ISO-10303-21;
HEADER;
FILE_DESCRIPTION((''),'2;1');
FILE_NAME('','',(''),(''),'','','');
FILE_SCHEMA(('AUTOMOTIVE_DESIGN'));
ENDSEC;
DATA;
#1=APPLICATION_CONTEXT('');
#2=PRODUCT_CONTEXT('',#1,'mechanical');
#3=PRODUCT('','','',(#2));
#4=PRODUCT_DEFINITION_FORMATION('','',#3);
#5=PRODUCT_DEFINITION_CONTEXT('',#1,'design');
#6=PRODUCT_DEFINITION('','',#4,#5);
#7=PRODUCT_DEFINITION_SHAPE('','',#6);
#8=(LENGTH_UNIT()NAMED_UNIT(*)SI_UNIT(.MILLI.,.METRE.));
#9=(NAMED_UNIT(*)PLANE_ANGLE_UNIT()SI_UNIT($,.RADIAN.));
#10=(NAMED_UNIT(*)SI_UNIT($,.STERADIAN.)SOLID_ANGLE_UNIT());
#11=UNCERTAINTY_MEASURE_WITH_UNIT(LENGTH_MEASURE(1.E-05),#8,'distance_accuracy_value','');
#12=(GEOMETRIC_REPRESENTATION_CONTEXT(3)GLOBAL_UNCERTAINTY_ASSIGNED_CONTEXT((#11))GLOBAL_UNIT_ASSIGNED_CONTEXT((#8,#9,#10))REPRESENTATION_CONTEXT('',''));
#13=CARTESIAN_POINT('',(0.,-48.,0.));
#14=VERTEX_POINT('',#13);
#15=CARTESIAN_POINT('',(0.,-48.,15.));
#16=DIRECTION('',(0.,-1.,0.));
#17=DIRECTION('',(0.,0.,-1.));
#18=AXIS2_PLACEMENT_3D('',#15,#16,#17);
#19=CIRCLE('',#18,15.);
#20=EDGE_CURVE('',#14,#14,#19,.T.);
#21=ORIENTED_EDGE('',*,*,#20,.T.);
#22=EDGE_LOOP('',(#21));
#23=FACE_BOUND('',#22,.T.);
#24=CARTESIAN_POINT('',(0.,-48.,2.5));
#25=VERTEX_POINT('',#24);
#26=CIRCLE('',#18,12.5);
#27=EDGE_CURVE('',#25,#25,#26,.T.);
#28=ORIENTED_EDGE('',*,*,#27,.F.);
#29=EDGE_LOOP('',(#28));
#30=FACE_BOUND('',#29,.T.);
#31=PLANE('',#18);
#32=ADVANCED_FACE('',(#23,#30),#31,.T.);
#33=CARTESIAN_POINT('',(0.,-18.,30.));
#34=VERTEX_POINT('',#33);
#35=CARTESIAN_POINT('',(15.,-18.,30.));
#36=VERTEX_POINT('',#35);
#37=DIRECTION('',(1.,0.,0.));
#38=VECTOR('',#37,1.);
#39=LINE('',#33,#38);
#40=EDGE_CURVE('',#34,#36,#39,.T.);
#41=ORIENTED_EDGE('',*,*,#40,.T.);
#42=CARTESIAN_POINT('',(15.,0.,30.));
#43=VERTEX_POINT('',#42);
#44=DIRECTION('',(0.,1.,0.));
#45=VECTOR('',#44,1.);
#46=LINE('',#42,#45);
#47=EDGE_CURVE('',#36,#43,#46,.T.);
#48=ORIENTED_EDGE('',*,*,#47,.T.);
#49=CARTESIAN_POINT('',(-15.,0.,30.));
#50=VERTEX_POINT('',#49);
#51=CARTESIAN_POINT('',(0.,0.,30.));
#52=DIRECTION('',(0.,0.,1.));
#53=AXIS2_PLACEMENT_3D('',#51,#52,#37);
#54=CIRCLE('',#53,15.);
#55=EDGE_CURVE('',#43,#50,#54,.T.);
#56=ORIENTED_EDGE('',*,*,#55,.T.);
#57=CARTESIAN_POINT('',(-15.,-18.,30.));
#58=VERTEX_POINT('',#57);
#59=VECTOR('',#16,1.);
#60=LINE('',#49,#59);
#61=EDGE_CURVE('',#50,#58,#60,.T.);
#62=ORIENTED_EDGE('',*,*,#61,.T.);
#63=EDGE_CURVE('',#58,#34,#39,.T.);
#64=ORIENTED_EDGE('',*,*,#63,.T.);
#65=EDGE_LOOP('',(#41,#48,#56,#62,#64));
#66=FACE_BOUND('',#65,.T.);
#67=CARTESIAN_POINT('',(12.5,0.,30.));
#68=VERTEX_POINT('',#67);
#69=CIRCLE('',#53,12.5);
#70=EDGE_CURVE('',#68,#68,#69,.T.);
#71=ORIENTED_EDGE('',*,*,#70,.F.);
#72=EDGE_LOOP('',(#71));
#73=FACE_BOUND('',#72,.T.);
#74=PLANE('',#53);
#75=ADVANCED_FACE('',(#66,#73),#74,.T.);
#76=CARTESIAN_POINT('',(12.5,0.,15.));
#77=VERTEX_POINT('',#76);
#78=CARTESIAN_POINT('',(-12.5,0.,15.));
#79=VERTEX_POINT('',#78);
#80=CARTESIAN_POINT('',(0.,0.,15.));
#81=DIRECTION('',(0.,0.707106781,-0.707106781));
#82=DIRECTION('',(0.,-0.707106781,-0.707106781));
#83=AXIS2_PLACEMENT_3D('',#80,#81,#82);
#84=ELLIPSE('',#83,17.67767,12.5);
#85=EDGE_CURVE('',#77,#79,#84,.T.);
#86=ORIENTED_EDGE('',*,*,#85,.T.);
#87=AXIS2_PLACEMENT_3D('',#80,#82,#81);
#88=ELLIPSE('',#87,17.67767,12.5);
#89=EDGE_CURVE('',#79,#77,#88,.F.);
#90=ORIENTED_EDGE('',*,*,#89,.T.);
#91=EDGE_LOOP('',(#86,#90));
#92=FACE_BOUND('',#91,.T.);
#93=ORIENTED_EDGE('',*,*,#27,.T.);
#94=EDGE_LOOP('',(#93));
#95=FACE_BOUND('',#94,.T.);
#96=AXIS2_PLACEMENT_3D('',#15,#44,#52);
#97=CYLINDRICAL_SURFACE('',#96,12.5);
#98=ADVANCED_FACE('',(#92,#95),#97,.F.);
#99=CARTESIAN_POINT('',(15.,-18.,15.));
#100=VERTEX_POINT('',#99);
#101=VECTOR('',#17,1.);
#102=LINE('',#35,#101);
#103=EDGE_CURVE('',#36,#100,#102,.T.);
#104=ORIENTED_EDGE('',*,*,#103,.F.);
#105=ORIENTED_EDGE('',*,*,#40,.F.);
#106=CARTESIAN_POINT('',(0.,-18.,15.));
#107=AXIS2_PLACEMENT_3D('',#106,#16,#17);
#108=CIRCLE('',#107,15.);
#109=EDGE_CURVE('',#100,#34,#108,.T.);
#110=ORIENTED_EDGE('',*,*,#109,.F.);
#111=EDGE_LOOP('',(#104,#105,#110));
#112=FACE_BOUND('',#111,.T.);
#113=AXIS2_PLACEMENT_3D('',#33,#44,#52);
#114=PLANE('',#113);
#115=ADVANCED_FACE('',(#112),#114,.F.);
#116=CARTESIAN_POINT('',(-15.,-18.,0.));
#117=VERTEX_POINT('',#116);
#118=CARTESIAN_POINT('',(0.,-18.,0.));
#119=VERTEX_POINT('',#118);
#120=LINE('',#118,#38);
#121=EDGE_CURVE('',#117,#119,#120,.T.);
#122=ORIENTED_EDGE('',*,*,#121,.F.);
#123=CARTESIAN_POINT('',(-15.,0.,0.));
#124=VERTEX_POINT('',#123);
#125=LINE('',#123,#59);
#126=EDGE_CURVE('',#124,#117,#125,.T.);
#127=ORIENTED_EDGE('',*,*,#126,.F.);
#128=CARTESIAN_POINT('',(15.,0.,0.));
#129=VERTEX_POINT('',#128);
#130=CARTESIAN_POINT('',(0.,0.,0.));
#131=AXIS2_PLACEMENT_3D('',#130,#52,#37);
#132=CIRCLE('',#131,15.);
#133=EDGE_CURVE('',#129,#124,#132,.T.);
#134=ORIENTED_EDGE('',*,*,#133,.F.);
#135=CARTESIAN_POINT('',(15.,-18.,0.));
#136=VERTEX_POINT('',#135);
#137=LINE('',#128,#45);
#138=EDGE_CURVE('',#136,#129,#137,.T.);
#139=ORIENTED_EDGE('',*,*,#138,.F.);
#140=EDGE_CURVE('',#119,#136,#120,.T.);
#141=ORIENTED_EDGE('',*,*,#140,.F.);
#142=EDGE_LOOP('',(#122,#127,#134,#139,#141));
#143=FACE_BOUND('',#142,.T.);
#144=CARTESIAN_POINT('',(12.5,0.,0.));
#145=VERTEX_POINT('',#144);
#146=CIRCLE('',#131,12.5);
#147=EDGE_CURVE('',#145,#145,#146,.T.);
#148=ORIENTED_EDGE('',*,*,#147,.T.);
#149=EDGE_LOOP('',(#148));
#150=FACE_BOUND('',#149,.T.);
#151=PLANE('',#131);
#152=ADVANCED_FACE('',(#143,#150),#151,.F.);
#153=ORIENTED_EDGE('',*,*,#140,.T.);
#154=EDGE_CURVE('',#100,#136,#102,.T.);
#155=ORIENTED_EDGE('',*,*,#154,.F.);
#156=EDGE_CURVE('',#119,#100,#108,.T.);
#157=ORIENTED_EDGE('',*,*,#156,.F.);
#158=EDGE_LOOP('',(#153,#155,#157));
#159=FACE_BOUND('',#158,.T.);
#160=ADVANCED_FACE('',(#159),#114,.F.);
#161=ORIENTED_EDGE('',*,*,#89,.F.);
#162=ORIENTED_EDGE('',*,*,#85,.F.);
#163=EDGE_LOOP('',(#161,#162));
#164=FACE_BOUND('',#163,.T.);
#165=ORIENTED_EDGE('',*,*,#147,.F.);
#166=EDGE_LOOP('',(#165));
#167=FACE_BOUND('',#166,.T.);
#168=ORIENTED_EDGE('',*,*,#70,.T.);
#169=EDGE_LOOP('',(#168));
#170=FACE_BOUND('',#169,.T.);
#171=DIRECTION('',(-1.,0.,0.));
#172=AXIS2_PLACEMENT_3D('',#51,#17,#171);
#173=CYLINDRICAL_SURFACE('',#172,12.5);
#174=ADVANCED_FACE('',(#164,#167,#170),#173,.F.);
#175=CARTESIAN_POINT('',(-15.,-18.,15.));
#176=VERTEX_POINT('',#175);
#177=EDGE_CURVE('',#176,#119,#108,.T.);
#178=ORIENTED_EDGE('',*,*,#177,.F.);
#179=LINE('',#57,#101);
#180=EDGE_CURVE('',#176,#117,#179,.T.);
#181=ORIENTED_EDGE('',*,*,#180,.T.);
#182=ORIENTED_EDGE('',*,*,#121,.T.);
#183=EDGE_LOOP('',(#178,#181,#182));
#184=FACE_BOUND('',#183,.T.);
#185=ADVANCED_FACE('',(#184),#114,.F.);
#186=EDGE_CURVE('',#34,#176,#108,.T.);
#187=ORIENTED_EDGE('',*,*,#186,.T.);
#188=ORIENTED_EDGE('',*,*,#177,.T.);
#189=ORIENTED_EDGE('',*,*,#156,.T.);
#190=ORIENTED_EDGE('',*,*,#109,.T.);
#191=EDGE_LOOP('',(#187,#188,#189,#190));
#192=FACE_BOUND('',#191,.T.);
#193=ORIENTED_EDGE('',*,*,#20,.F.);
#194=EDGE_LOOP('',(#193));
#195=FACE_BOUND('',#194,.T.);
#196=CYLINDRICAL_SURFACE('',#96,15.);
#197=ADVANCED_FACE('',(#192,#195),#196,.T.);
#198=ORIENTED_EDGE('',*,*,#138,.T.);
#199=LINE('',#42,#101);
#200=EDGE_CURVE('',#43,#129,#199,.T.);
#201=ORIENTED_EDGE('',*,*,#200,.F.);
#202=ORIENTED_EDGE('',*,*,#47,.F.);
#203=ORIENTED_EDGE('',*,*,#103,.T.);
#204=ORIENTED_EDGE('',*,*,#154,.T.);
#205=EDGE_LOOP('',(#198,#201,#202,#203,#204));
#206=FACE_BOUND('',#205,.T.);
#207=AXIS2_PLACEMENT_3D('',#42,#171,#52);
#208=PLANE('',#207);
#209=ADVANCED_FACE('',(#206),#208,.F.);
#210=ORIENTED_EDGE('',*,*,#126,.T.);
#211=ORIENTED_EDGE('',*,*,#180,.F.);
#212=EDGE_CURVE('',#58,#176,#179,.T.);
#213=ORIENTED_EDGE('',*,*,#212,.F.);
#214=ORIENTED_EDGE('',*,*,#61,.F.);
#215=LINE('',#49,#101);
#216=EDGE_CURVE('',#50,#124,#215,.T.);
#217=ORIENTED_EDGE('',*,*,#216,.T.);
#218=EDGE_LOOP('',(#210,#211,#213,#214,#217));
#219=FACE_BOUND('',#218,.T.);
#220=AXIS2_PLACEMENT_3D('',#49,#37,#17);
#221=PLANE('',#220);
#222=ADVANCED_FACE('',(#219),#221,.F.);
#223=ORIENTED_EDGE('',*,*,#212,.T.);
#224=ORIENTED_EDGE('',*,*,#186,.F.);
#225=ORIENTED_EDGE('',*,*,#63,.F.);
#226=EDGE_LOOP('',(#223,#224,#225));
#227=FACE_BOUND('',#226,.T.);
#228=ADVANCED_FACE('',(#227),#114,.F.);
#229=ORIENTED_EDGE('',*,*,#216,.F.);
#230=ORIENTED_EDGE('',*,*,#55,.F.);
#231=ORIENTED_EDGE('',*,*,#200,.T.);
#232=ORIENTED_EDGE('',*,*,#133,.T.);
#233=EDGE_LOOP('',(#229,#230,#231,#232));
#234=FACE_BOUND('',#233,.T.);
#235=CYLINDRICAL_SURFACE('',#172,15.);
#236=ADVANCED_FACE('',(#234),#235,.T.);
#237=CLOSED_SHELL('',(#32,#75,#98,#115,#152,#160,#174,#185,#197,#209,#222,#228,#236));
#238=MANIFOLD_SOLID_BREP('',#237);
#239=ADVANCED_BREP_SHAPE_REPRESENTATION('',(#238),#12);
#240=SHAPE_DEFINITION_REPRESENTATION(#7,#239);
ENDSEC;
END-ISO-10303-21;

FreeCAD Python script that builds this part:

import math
import FreeCAD as App
import Part
import Sketcher
from FreeCAD import Vector

doc = App.newDocument("Part")
body = doc.addObject("PartDesign::Body", "Body")

sketch1 = body.newObject("Sketcher::SketchObject", "Sketch")
sketch1.AttachmentSupport = (doc.getObject("XY_Plane"), [""])
sketch1.MapMode = "FlatFace"
sketch1.addGeometry(Part.LineSegment(Vector(-15, 0, 0), Vector(-15, -18, 0)), False)
sketch1.addGeometry(Part.LineSegment(Vector(-15, -18, 0), Vector(15, -18, 0)), False)
sketch1.addGeometry(Part.LineSegment(Vector(15, -18, 0), Vector(15, 0, 0)), False)
sketch1.addGeometry(Part.ArcOfCircle(Part.Circle(Vector(0, 0, 0), Vector(0, 0, 1), 15), math.radians(0), math.radians(180)), False)
sketch1.addGeometry(Part.Circle(Vector(0, 0, 0), Vector(0, 0, 1), 12), False)
sketch1.addConstraint(Sketcher.Constraint("Coincident", 0, 2, 1, 1))
sketch1.addConstraint(Sketcher.Constraint("Coincident", 1, 2, 2, 1))
sketch1.addConstraint(Sketcher.Constraint("Tangent", 2, 2, 3, 1))
sketch1.addConstraint(Sketcher.Constraint("Tangent", 3, 2, 0, 1))
sketch1.addConstraint(Sketcher.Constraint("Vertical", 0))
sketch1.addConstraint(Sketcher.Constraint("Horizontal", 1))
sketch1.addConstraint(Sketcher.Constraint("Vertical", 2))
sketch1.addConstraint(Sketcher.Constraint("Coincident", 3, 3, -1, 1))
sketch1.addConstraint(Sketcher.Constraint("Coincident", 4, 3, -1, 1))
sketch1.addConstraint(Sketcher.Constraint("Diameter", 4, 25.0))
sketch1.addConstraint(Sketcher.Constraint("Radius", 3, 15.0))
sketch1.addConstraint(Sketcher.Constraint("DistanceY", 0, 2, 0, 1, 18.0))
pad1 = body.newObject("PartDesign::Pad", "Pad")
pad1.Profile = sketch1
pad1.Length = 30

sketch2 = body.newObject("Sketcher::SketchObject", "Sketch001")
sketch2.AttachmentSupport = (doc.getObject("XZ_Plane"), [""])
sketch2.MapMode = "FlatFace"
sketch2.AttachmentOffset = App.Placement(Vector(0, 0, 18), App.Rotation())
sketch2.addGeometry(Part.Circle(Vector(0, 15, 0), Vector(0, 0, 1), 15), False)
sketch2.addGeometry(Part.Circle(Vector(0, 15, 0), Vector(0, 0, 1), 12), False)
sketch2.addConstraint(Sketcher.Constraint("Coincident", 1, 3, 0, 3))
sketch2.addConstraint(Sketcher.Constraint("PointOnObject", 0, 3, -2))
sketch2.addConstraint(Sketcher.Constraint("Diameter", 0, 30.0))
sketch2.addConstraint(Sketcher.Constraint("Diameter", 1, 25.0))
sketch2.addConstraint(Sketcher.Constraint("DistanceY", -1, 1, 0, 3, 15.0))
pad2 = body.newObject("PartDesign::Pad", "Pad001")
pad2.Profile = sketch2
pad2.Length = 30

sketch3 = body.newObject("Sketcher::SketchObject", "Sketch002")
sketch3.AttachmentSupport = (doc.getObject("XZ_Plane"), [""])
sketch3.MapMode = "FlatFace"
sketch3.AttachmentOffset = App.Placement(Vector(0, 0, 18), App.Rotation())
sketch3.addGeometry(Part.Circle(Vector(0, 15, 0), Vector(0, 0, 1), 12), False)
sketch3.addConstraint(Sketcher.Constraint("PointOnObject", 0, 3, -2))
sketch3.addConstraint(Sketcher.Constraint("Diameter", 0, 25.0))
sketch3.addConstraint(Sketcher.Constraint("DistanceY", -1, 1, 0, 3, 15.0))
pocket1 = body.newObject("PartDesign::Pocket", "Pocket")
pocket1.Profile = sketch3
pocket1.Length = 18

doc.recompute()
